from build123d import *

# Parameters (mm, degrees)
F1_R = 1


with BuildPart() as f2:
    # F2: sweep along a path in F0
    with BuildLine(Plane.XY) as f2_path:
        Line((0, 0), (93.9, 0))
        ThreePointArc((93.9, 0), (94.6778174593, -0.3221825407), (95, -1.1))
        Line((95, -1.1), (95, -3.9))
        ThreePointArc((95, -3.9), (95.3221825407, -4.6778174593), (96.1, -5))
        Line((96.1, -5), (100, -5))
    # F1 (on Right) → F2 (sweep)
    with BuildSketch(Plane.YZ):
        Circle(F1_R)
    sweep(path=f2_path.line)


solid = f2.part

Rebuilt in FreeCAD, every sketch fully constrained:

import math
import FreeCAD as App
import Part
import Sketcher
from FreeCAD import Vector
Q = App.Units.Quantity

doc = App.newDocument("Part")
body = doc.addObject("PartDesign::Body", "Body")

sketch1 = body.newObject("Sketcher::SketchObject", "Sketch")
sketch1.AttachmentSupport = (doc.getObject("YZ_Plane"), [""])
sketch1.MapMode = "FlatFace"
sketch1.addGeometry(Part.Circle(Vector(0, 0, 0), Vector(0, 0, 1), 1), False)
sketch1.addConstraint([
    Sketcher.Constraint("Coincident", 0, 3, -1, 1),
    Sketcher.Constraint("Diameter", 0, Q("2 mm")),
])

sketch2 = body.newObject("Sketcher::SketchObject", "Sketch001")
sketch2.AttachmentSupport = (doc.getObject("XY_Plane"), [""])
sketch2.MapMode = "FlatFace"
sketch2.addGeometry([
    Part.LineSegment(Vector(0, 0, 0), Vector(93.9, 0, 0)),
    Part.ArcOfCircle(Part.Circle(Vector(93.9, -1.1, 0), Vector(0, 0, 1), 1.1), math.radians(0), math.radians(90)),
    Part.LineSegment(Vector(95, -1.1, 0), Vector(95, -3.9, 0)),
    Part.ArcOfCircle(Part.Circle(Vector(96.1, -3.9, 0), Vector(0, 0, 1), 1.1), math.radians(180), math.radians(270)),
    Part.LineSegment(Vector(96.1, -5, 0), Vector(100, -5, 0)),
], False)
sketch2.addConstraint([
    Sketcher.Constraint("Tangent", 0, 2, 1, 2),
    Sketcher.Constraint("Tangent", 1, 1, 2, 1),
    Sketcher.Constraint("Tangent", 2, 2, 3, 1),
    Sketcher.Constraint("Tangent", 3, 2, 4, 1),
    Sketcher.Constraint("Horizontal", 0),
    Sketcher.Constraint("Vertical", 2),
    Sketcher.Constraint("Horizontal", 4),
    Sketcher.Constraint("Coincident", 0, 1, -1, 1),
    Sketcher.Constraint("Equal", 1, 3),
    Sketcher.Constraint("Radius", 1, Q("1.1 mm")),
    Sketcher.Constraint("DistanceX", 0, 1, 0, 2, Q("93.9 mm")),
    Sketcher.Constraint("DistanceX", 4, 1, 4, 2, Q("3.9 mm")),
    Sketcher.Constraint("DistanceY", 2, 2, 2, 1, Q("2.8 mm")),
])
doc.recompute()

additivepipe = body.newObject("PartDesign::AdditivePipe", "AdditivePipe")
additivepipe.Profile = sketch1
additivepipe.Spine = (sketch2, ["Edge1", "Edge2", "Edge3", "Edge4", "Edge5"])

doc.recompute()
